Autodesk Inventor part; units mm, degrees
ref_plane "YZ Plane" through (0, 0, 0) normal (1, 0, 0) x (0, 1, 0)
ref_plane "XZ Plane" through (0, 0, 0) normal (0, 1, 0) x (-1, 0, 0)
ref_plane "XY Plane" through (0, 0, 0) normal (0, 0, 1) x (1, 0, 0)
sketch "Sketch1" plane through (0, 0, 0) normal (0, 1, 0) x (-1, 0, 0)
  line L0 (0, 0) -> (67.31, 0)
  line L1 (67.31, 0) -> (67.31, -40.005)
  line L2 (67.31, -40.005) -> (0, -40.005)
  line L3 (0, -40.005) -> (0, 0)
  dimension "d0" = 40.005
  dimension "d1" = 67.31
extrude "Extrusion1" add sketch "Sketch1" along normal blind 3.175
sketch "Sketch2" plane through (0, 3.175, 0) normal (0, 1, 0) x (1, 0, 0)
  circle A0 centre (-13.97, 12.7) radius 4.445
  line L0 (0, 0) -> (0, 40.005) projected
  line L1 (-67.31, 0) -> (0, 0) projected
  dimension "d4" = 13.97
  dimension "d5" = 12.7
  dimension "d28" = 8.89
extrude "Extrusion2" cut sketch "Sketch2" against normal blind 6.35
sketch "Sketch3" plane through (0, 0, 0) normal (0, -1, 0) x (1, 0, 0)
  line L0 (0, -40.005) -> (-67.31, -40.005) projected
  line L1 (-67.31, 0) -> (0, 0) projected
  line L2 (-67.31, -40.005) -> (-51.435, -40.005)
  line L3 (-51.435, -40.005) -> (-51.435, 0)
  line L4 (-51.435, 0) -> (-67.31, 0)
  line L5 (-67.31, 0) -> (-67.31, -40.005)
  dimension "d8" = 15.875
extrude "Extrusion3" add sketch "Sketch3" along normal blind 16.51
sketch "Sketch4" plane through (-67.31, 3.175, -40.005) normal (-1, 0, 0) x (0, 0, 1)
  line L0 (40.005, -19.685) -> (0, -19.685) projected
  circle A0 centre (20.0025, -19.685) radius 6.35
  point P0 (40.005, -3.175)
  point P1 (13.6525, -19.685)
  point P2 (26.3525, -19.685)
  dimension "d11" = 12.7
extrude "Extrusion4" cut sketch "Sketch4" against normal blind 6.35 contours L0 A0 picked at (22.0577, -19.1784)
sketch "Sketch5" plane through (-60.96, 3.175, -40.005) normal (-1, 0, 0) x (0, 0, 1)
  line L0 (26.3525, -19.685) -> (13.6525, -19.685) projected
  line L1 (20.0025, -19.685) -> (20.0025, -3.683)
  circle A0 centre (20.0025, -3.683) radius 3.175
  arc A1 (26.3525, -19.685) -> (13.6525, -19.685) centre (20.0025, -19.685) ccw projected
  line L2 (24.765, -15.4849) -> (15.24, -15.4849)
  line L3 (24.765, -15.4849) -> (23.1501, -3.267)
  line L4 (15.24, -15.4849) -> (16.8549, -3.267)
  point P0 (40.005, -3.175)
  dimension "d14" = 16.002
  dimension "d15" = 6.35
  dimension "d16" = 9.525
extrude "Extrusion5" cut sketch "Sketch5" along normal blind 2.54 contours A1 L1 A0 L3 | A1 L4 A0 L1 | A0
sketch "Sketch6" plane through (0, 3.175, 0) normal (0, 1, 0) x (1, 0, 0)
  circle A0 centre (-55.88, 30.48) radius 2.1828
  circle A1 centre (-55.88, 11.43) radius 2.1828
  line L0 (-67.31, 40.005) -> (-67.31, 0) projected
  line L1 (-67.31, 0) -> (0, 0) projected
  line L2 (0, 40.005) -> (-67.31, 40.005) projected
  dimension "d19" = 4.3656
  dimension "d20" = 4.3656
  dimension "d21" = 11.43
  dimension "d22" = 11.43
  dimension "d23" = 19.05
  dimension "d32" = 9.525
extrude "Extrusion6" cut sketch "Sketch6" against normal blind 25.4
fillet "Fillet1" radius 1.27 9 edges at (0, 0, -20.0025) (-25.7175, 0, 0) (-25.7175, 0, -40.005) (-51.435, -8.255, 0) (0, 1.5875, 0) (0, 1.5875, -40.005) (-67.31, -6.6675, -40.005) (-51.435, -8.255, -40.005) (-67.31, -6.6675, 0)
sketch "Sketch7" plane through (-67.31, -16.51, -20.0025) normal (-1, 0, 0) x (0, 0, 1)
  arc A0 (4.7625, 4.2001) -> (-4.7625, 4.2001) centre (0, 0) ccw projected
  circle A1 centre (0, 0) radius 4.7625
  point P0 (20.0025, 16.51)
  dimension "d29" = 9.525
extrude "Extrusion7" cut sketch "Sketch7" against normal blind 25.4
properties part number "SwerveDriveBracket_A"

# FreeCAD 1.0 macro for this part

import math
import FreeCAD as App
import Part
import Sketcher

V = App.Vector
Q = App.Units.Quantity


def edges_at(feature, points):
    """Names of the edges that pass closest to the given points."""
    edges = feature.Shape.Edges
    near = lambda p: min(range(len(edges)), key=lambda i: edges[i].distToShape(Part.Vertex(*p))[0])
    return sorted({f"Edge{near(p) + 1}" for p in points})


def add_polygon(sketch, points):
    """Adds a closed chain of lines whose ends are joined by coincident constraints."""
    first, n = sketch.GeometryCount, len(points)
    for a, b in zip(points, points[1:] + points[:1]):
        sketch.addGeometry(Part.LineSegment(App.Vector(*a, 0), App.Vector(*b, 0)), False)
    for i in range(n):
        sketch.addConstraint(Sketcher.Constraint("Coincident", first + i, 2, first + (i + 1) % n, 1))

doc = App.newDocument("Part")
body = doc.addObject("PartDesign::Body", "Body")

# Sketch on XZ plane
sketch1 = body.newObject("Sketcher::SketchObject", "Sketch")
sketch1.AttachmentSupport = (doc.getObject("XZ_Plane"), [""])
sketch1.MapMode = "FlatFace"
add_polygon(sketch1, [(-67, 0), (0, 0), (0, -40), (-67, -40)])  # lines 0-3
sketch1.addConstraint([
    Sketcher.Constraint("Horizontal", 0),
    Sketcher.Constraint("Vertical", 1),
    Sketcher.Constraint("Horizontal", 2),
    Sketcher.Constraint("Vertical", 3),
    Sketcher.Constraint("Coincident", 0, 2, -1, 1),
    Sketcher.Constraint("DistanceX", 0, 1, 0, 2, Q("2.65 in")),
    Sketcher.Constraint("DistanceY", 1, 2, 1, 1, Q("1.575 in")),
])
pad1 = body.newObject("PartDesign::Pad", "Pad")
pad1.Profile = sketch1
pad1.Length = Q("0.125 in")
pad1.Reversed = True

# Sketch on XZ plane
sketch2 = body.newObject("Sketcher::SketchObject", "Sketch001")
sketch2.AttachmentSupport = (doc.getObject("XZ_Plane"), [""])
sketch2.MapMode = "FlatFace"
sketch2.AttachmentOffset = App.Placement(V(0, 0, -0.125 * 25.4), App.Rotation())
sketch2.addGeometry(Part.Circle(V(-14, -12.7, 0), V(0, 0, 1), 4.4), False)
sketch2.addConstraint([
    Sketcher.Constraint("Diameter", 0, Q("0.35 in")),
    Sketcher.Constraint("DistanceY", 0, 3, -1, 1, Q("0.5 in")),
    Sketcher.Constraint("DistanceX", 0, 3, -1, 1, Q("0.55 in")),
])
pocket1 = body.newObject("PartDesign::Pocket", "Pocket")
pocket1.Profile = sketch2
pocket1.Length = Q("0.25 in")
pocket1.Reversed = True

# Sketch on XZ plane
sketch3 = body.newObject("Sketcher::SketchObject", "Sketch002")
sketch3.AttachmentSupport = (doc.getObject("XZ_Plane"), [""])
sketch3.MapMode = "FlatFace"
add_polygon(sketch3, [(-67, -40), (-51, -40), (-51, 0), (-67, 0)])  # lines 0-3
sketch3.addConstraint([
    Sketcher.Constraint("Horizontal", 0),
    Sketcher.Constraint("Vertical", 1),
    Sketcher.Constraint("Horizontal", 2),
    Sketcher.Constraint("Vertical", 3),
    Sketcher.Constraint("PointOnObject", 1, 2, -1),
    Sketcher.Constraint("DistanceX", 0, 1, 0, 2, Q("0.625 in")),
    Sketcher.Constraint("DistanceY", 1, 1, 1, 2, Q("1.575 in")),
    Sketcher.Constraint("DistanceX", 2, 2, -1, 1, Q("2.65 in")),
])
pad2 = body.newObject("PartDesign::Pad", "Pad001")
pad2.Profile = sketch3
pad2.Length = Q("0.65 in")

# Sketch on YZ plane
sketch4 = body.newObject("Sketcher::SketchObject", "Sketch003")
sketch4.AttachmentSupport = (doc.getObject("YZ_Plane"), [""])
sketch4.MapMode = "FlatFace"
sketch4.AttachmentOffset = App.Placement(V(0, 0, -2.65 * 25.4), App.Rotation())
sketch4.addGeometry([
    Part.LineSegment(V(-17, -26, 0), V(-17, -14, 0)),
    Part.ArcOfCircle(Part.Circle(V(-17, -20, 0), V(0, 0, 1), 6), math.radians(-90), math.radians(90)),
], False)
sketch4.addConstraint([
    Sketcher.Constraint("Coincident", 0, 1, 1, 1),
    Sketcher.Constraint("Coincident", 1, 2, 0, 2),
    Sketcher.Constraint("Vertical", 0),
    Sketcher.Constraint("Vertical", 1, 3, 0, 1),
    Sketcher.Constraint("Radius", 1, Q("0.25 in")),
    Sketcher.Constraint("DistanceX", 1, 3, -1, 1, Q("0.65 in")),
    Sketcher.Constraint("DistanceY", 1, 3, -1, 1, Q("0.7875 in")),
])
pocket2 = body.newObject("PartDesign::Pocket", "Pocket001")
pocket2.Profile = sketch4
pocket2.Length = Q("0.25 in")
pocket2.Reversed = True

# Sketch on YZ plane
sketch5 = body.newObject("Sketcher::SketchObject", "Sketch004")
sketch5.AttachmentSupport = (doc.getObject("YZ_Plane"), [""])
sketch5.MapMode = "FlatFace"
sketch5.AttachmentOffset = App.Placement(V(0, 0, -2.4 * 25.4), App.Rotation())
sketch5.addGeometry([
    Part.LineSegment(V(-12.3, -15.2, 0), V(-0.1, -16.9, 0)),
    Part.ArcOfCircle(Part.Circle(V(-0.5, -20, 0), V(0, 0, 1), 3.2), math.radians(-82), math.radians(82)),
    Part.LineSegment(V(-0.1, -23.2, 0), V(-12.3, -24.8, 0)),
    Part.ArcOfCircle(Part.Circle(V(-16.5, -20, 0), V(0, 0, 1), 6.3), math.radians(-49), math.radians(49)),
], False)
sketch5.addConstraint([
    Sketcher.Constraint("Tangent", 0, 2, 1, 2),
    Sketcher.Constraint("Tangent", 1, 1, 2, 1),
    Sketcher.Constraint("Coincident", 2, 2, 3, 1),
    Sketcher.Constraint("Coincident", 3, 2, 0, 1),
    Sketcher.Constraint("Horizontal", 1, 3, 3, 3),
    Sketcher.Constraint("Vertical", 0, 2, 1, 1),
    Sketcher.Constraint("Radius", 3, Q("0.25 in")),
    Sketcher.Constraint("Radius", 1, Q("0.125 in")),
    Sketcher.Constraint("DistanceX", 3, 3, 1, 3, Q("0.63 in")),
    Sketcher.Constraint("DistanceY", 2, 2, 3, 2, Q("0.375 in")),
    Sketcher.Constraint("DistanceY", 3, 2, -1, 1, Q("0.6 in")),
    Sketcher.Constraint("DistanceX", 1, 3, -1, 1, Q("0.02 in")),
])
pocket3 = body.newObject("PartDesign::Pocket", "Pocket002")
pocket3.Profile = sketch5
pocket3.Length = Q("0.1 in")

# Sketch on XZ plane
sketch6 = body.newObject("Sketcher::SketchObject", "Sketch005")
sketch6.AttachmentSupport = (doc.getObject("XZ_Plane"), [""])
sketch6.MapMode = "FlatFace"
sketch6.AttachmentOffset = App.Placement(V(0, 0, -0.125 * 25.4), App.Rotation())
sketch6.addGeometry([
    Part.Circle(V(-55.9, -30.5, 0), V(0, 0, 1), 2.2),
    Part.Circle(V(-55.9, -11.4, 0), V(0, 0, 1), 2.2),
], False)
sketch6.addConstraint([
    Sketcher.Constraint("Equal", 0, 1),
    Sketcher.Constraint("Vertical", 0, 3, 1, 3),
    Sketcher.Constraint("Diameter", 0, Q("0.171874 in")),
    Sketcher.Constraint("DistanceY", 1, 3, -1, 1, Q("0.45 in")),
    Sketcher.Constraint("DistanceY", 0, 3, 1, 3, Q("0.75 in")),
    Sketcher.Constraint("DistanceX", 0, 3, -1, 1, Q("2.2 in")),
])
pocket4 = body.newObject("PartDesign::Pocket", "Pocket003")
pocket4.Profile = sketch6
pocket4.Length = Q("1 in")
pocket4.Reversed = True
doc.recompute()

fillet = body.newObject("PartDesign::Fillet", "Fillet")
fillet.Base = (pocket4, edges_at(pocket4, [
    (0, 0, -20.003),
    (-25.718, 0, 0),
    (-25.718, 0, -40.005),
    (-51.435, -8.255, 0),
    (0, 1.587, 0),
    (0, 1.587, -40.005),
    (-67.31, -6.668, -40.005),
    (-51.435, -8.255, -40.005),
    (-67.31, -6.668, 0),
]))
fillet.Radius = Q("0.05 in")

# Sketch on YZ plane
sketch7 = body.newObject("Sketcher::SketchObject", "Sketch006")
sketch7.AttachmentSupport = (doc.getObject("YZ_Plane"), [""])
sketch7.MapMode = "FlatFace"
sketch7.AttachmentOffset = App.Placement(V(0, 0, -2.65 * 25.4), App.Rotation())
sketch7.addGeometry(Part.Circle(V(-16.5, -20, 0), V(0, 0, 1), 4.8), False)
sketch7.addConstraint([
    Sketcher.Constraint("Diameter", 0, Q("0.375 in")),
    Sketcher.Constraint("DistanceX", 0, 3, -1, 1, Q("0.65 in")),
    Sketcher.Constraint("DistanceY", 0, 3, -1, 1, Q("0.7875 in")),
])
pocket5 = body.newObject("PartDesign::Pocket", "Pocket004")
pocket5.Profile = sketch7
pocket5.Length = Q("1 in")
pocket5.Reversed = True

doc.recompute()
